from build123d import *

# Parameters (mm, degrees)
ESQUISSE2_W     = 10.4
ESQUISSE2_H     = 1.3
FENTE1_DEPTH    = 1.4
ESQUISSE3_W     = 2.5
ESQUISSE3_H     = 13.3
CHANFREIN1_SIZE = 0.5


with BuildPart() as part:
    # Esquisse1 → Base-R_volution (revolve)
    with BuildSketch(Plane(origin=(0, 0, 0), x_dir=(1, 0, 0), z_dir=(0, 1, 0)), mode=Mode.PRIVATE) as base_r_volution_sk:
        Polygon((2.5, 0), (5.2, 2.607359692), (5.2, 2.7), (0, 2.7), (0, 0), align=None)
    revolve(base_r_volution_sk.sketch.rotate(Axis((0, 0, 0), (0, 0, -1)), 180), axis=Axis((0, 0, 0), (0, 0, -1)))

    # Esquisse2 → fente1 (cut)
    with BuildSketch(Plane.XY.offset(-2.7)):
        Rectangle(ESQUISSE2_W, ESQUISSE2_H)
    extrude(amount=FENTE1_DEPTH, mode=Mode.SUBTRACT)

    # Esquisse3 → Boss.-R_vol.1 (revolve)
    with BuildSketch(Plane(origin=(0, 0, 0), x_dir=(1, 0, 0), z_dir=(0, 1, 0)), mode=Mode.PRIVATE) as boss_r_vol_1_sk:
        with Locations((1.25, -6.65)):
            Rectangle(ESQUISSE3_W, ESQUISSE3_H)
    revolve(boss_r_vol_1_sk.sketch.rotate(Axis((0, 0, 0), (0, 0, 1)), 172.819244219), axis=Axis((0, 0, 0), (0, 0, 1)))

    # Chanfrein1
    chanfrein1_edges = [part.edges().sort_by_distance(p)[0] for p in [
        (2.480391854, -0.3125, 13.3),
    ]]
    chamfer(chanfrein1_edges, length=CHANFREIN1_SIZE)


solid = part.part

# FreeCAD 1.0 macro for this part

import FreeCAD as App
import Part
import Sketcher

V = App.Vector
Q = App.Units.Quantity


def edges_at(feature, points):
    """Names of the edges that pass closest to the given points."""
    edges = feature.Shape.Edges
    near = lambda p: min(range(len(edges)), key=lambda i: edges[i].distToShape(Part.Vertex(*p))[0])
    return sorted({f"Edge{near(p) + 1}" for p in points})


def add_polygon(sketch, points):
    """Adds a closed chain of lines whose ends are joined by coincident constraints."""
    first, n = sketch.GeometryCount, len(points)
    for a, b in zip(points, points[1:] + points[:1]):
        sketch.addGeometry(Part.LineSegment(App.Vector(*a, 0), App.Vector(*b, 0)), False)
    for i in range(n):
        sketch.addConstraint(Sketcher.Constraint("Coincident", first + i, 2, first + (i + 1) % n, 1))

doc = App.newDocument("Part")
params = doc.addObject("Spreadsheet::Sheet", "Params")
for row, (alias, value) in enumerate([
    ("sketch1_width", "5.2 mm"),
    ("sketch1_width2", "2.5 mm"),
    ("sketch1_height", "2.7 mm"),
    ("revolution_angle", "360 deg"),
    ("sketch2_width", "10.4 mm"),
    ("sketch2_height", "1.3 mm"),
    ("pocket1_length", "1.4 mm"),
    ("sketch3_width", "2.5 mm"),
    ("sketch3_height", "13.3 mm"),
    ("revolution2_angle", "360 deg"),
    ("chamfer_size", "0.5 mm"),
], start=1):
    params.set(f"A{row}", alias)
    params.set(f"B{row}", "=" + value)
    params.setAlias(f"B{row}", alias)

body = doc.addObject("PartDesign::Body", "Body")

sketch1 = doc.addObject("Sketcher::SketchObject", "Sketch")
body.addObject(sketch1)
sketch1.AttachmentSupport = (doc.XZ_Plane, [""])
sketch1.MapMode = "FlatFace"
add_polygon(sketch1, [(2.5, 0), (5.2, -2.60736), (5.2, -2.7), (0, -2.7), (0, 0)])
sketch1.addConstraint([
    Sketcher.Constraint("Vertical", 1),
    Sketcher.Constraint("Horizontal", 2),
    Sketcher.Constraint("Vertical", 3),
    Sketcher.Constraint("Horizontal", 4),
    Sketcher.Constraint("Coincident", 3, 2, -1, 1),
    Sketcher.Constraint("Angle", 0, Q("-44 deg")),
    Sketcher.Constraint("DistanceX", 2, 2, 2, 1, Q("5.2 mm")),
    Sketcher.Constraint("DistanceX", 4, 1, 4, 2, Q("2.5 mm")),
    Sketcher.Constraint("DistanceY", 3, 1, 3, 2, Q("2.7 mm")),
])
sketch1.setExpression("Constraints[11]", "Params.sketch1_width")
sketch1.setExpression("Constraints[12]", "Params.sketch1_width2")
sketch1.setExpression("Constraints[13]", "Params.sketch1_height")
revolution = doc.addObject("PartDesign::Revolution", "Revolution")
body.addObject(revolution)
revolution.Profile = sketch1
revolution.ReferenceAxis = (sketch1, ["V_Axis"])
revolution.setExpression("Angle", "Params.revolution_angle")

sketch2 = doc.addObject("Sketcher::SketchObject", "Sketch001")
body.addObject(sketch2)
sketch2.AttachmentSupport = (doc.XY_Plane, [""])
sketch2.MapMode = "FlatFace"
sketch2.AttachmentOffset = App.Placement(V(0, 0, -2.7), App.Rotation())
add_polygon(sketch2, [(-5.2, 0.65), (-5.2, -0.65), (5.2, -0.65), (5.2, 0.65)])
sketch2.addConstraint([
    Sketcher.Constraint("Vertical", 0),
    Sketcher.Constraint("Horizontal", 1),
    Sketcher.Constraint("Vertical", 2),
    Sketcher.Constraint("Horizontal", 3),
    Sketcher.Constraint("Symmetric", 0, 2, 2, 2, -1, 1),
    Sketcher.Constraint("DistanceX", 1, 1, 1, 2, Q("10.4 mm")),
    Sketcher.Constraint("DistanceY", 0, 2, 0, 1, Q("1.3 mm")),
])
sketch2.setExpression("Constraints[9]", "Params.sketch2_width")
sketch2.setExpression("Constraints[10]", "Params.sketch2_height")
pocket1 = doc.addObject("PartDesign::Pocket", "Pocket")
body.addObject(pocket1)
pocket1.Profile = sketch2
pocket1.setExpression("Length", "Params.pocket1_length")
pocket1.Reversed = True

sketch3 = doc.addObject("Sketcher::SketchObject", "Sketch002")
body.addObject(sketch3)
sketch3.AttachmentSupport = (doc.XZ_Plane, [""])
sketch3.MapMode = "FlatFace"
add_polygon(sketch3, [(0, 0), (0, 13.3), (2.5, 13.3), (2.5, 0)])
sketch3.addConstraint([
    Sketcher.Constraint("Vertical", 0),
    Sketcher.Constraint("Horizontal", 1),
    Sketcher.Constraint("Vertical", 2),
    Sketcher.Constraint("Horizontal", 3),
    Sketcher.Constraint("Coincident", 3, 2, -1, 1),
    Sketcher.Constraint("DistanceX", 1, 1, 1, 2, Q("2.5 mm")),
    Sketcher.Constraint("DistanceY", 0, 1, 0, 2, Q("13.3 mm")),
])
sketch3.setExpression("Constraints[9]", "Params.sketch3_width")
sketch3.setExpression("Constraints[10]", "Params.sketch3_height")
revolution2 = doc.addObject("PartDesign::Revolution", "Revolution001")
body.addObject(revolution2)
revolution2.Profile = sketch3
revolution2.ReferenceAxis = (sketch3, ["V_Axis"])
revolution2.setExpression("Angle", "Params.revolution2_angle")
doc.recompute()

chamfer = doc.addObject("PartDesign::Chamfer", "Chamfer")
body.addObject(chamfer)
chamfer.Base = (revolution2, edges_at(revolution2, [(2.48, -0.312, 13.3)]))
chamfer.setExpression("Size", "Params.chamfer_size")

doc.recompute()
